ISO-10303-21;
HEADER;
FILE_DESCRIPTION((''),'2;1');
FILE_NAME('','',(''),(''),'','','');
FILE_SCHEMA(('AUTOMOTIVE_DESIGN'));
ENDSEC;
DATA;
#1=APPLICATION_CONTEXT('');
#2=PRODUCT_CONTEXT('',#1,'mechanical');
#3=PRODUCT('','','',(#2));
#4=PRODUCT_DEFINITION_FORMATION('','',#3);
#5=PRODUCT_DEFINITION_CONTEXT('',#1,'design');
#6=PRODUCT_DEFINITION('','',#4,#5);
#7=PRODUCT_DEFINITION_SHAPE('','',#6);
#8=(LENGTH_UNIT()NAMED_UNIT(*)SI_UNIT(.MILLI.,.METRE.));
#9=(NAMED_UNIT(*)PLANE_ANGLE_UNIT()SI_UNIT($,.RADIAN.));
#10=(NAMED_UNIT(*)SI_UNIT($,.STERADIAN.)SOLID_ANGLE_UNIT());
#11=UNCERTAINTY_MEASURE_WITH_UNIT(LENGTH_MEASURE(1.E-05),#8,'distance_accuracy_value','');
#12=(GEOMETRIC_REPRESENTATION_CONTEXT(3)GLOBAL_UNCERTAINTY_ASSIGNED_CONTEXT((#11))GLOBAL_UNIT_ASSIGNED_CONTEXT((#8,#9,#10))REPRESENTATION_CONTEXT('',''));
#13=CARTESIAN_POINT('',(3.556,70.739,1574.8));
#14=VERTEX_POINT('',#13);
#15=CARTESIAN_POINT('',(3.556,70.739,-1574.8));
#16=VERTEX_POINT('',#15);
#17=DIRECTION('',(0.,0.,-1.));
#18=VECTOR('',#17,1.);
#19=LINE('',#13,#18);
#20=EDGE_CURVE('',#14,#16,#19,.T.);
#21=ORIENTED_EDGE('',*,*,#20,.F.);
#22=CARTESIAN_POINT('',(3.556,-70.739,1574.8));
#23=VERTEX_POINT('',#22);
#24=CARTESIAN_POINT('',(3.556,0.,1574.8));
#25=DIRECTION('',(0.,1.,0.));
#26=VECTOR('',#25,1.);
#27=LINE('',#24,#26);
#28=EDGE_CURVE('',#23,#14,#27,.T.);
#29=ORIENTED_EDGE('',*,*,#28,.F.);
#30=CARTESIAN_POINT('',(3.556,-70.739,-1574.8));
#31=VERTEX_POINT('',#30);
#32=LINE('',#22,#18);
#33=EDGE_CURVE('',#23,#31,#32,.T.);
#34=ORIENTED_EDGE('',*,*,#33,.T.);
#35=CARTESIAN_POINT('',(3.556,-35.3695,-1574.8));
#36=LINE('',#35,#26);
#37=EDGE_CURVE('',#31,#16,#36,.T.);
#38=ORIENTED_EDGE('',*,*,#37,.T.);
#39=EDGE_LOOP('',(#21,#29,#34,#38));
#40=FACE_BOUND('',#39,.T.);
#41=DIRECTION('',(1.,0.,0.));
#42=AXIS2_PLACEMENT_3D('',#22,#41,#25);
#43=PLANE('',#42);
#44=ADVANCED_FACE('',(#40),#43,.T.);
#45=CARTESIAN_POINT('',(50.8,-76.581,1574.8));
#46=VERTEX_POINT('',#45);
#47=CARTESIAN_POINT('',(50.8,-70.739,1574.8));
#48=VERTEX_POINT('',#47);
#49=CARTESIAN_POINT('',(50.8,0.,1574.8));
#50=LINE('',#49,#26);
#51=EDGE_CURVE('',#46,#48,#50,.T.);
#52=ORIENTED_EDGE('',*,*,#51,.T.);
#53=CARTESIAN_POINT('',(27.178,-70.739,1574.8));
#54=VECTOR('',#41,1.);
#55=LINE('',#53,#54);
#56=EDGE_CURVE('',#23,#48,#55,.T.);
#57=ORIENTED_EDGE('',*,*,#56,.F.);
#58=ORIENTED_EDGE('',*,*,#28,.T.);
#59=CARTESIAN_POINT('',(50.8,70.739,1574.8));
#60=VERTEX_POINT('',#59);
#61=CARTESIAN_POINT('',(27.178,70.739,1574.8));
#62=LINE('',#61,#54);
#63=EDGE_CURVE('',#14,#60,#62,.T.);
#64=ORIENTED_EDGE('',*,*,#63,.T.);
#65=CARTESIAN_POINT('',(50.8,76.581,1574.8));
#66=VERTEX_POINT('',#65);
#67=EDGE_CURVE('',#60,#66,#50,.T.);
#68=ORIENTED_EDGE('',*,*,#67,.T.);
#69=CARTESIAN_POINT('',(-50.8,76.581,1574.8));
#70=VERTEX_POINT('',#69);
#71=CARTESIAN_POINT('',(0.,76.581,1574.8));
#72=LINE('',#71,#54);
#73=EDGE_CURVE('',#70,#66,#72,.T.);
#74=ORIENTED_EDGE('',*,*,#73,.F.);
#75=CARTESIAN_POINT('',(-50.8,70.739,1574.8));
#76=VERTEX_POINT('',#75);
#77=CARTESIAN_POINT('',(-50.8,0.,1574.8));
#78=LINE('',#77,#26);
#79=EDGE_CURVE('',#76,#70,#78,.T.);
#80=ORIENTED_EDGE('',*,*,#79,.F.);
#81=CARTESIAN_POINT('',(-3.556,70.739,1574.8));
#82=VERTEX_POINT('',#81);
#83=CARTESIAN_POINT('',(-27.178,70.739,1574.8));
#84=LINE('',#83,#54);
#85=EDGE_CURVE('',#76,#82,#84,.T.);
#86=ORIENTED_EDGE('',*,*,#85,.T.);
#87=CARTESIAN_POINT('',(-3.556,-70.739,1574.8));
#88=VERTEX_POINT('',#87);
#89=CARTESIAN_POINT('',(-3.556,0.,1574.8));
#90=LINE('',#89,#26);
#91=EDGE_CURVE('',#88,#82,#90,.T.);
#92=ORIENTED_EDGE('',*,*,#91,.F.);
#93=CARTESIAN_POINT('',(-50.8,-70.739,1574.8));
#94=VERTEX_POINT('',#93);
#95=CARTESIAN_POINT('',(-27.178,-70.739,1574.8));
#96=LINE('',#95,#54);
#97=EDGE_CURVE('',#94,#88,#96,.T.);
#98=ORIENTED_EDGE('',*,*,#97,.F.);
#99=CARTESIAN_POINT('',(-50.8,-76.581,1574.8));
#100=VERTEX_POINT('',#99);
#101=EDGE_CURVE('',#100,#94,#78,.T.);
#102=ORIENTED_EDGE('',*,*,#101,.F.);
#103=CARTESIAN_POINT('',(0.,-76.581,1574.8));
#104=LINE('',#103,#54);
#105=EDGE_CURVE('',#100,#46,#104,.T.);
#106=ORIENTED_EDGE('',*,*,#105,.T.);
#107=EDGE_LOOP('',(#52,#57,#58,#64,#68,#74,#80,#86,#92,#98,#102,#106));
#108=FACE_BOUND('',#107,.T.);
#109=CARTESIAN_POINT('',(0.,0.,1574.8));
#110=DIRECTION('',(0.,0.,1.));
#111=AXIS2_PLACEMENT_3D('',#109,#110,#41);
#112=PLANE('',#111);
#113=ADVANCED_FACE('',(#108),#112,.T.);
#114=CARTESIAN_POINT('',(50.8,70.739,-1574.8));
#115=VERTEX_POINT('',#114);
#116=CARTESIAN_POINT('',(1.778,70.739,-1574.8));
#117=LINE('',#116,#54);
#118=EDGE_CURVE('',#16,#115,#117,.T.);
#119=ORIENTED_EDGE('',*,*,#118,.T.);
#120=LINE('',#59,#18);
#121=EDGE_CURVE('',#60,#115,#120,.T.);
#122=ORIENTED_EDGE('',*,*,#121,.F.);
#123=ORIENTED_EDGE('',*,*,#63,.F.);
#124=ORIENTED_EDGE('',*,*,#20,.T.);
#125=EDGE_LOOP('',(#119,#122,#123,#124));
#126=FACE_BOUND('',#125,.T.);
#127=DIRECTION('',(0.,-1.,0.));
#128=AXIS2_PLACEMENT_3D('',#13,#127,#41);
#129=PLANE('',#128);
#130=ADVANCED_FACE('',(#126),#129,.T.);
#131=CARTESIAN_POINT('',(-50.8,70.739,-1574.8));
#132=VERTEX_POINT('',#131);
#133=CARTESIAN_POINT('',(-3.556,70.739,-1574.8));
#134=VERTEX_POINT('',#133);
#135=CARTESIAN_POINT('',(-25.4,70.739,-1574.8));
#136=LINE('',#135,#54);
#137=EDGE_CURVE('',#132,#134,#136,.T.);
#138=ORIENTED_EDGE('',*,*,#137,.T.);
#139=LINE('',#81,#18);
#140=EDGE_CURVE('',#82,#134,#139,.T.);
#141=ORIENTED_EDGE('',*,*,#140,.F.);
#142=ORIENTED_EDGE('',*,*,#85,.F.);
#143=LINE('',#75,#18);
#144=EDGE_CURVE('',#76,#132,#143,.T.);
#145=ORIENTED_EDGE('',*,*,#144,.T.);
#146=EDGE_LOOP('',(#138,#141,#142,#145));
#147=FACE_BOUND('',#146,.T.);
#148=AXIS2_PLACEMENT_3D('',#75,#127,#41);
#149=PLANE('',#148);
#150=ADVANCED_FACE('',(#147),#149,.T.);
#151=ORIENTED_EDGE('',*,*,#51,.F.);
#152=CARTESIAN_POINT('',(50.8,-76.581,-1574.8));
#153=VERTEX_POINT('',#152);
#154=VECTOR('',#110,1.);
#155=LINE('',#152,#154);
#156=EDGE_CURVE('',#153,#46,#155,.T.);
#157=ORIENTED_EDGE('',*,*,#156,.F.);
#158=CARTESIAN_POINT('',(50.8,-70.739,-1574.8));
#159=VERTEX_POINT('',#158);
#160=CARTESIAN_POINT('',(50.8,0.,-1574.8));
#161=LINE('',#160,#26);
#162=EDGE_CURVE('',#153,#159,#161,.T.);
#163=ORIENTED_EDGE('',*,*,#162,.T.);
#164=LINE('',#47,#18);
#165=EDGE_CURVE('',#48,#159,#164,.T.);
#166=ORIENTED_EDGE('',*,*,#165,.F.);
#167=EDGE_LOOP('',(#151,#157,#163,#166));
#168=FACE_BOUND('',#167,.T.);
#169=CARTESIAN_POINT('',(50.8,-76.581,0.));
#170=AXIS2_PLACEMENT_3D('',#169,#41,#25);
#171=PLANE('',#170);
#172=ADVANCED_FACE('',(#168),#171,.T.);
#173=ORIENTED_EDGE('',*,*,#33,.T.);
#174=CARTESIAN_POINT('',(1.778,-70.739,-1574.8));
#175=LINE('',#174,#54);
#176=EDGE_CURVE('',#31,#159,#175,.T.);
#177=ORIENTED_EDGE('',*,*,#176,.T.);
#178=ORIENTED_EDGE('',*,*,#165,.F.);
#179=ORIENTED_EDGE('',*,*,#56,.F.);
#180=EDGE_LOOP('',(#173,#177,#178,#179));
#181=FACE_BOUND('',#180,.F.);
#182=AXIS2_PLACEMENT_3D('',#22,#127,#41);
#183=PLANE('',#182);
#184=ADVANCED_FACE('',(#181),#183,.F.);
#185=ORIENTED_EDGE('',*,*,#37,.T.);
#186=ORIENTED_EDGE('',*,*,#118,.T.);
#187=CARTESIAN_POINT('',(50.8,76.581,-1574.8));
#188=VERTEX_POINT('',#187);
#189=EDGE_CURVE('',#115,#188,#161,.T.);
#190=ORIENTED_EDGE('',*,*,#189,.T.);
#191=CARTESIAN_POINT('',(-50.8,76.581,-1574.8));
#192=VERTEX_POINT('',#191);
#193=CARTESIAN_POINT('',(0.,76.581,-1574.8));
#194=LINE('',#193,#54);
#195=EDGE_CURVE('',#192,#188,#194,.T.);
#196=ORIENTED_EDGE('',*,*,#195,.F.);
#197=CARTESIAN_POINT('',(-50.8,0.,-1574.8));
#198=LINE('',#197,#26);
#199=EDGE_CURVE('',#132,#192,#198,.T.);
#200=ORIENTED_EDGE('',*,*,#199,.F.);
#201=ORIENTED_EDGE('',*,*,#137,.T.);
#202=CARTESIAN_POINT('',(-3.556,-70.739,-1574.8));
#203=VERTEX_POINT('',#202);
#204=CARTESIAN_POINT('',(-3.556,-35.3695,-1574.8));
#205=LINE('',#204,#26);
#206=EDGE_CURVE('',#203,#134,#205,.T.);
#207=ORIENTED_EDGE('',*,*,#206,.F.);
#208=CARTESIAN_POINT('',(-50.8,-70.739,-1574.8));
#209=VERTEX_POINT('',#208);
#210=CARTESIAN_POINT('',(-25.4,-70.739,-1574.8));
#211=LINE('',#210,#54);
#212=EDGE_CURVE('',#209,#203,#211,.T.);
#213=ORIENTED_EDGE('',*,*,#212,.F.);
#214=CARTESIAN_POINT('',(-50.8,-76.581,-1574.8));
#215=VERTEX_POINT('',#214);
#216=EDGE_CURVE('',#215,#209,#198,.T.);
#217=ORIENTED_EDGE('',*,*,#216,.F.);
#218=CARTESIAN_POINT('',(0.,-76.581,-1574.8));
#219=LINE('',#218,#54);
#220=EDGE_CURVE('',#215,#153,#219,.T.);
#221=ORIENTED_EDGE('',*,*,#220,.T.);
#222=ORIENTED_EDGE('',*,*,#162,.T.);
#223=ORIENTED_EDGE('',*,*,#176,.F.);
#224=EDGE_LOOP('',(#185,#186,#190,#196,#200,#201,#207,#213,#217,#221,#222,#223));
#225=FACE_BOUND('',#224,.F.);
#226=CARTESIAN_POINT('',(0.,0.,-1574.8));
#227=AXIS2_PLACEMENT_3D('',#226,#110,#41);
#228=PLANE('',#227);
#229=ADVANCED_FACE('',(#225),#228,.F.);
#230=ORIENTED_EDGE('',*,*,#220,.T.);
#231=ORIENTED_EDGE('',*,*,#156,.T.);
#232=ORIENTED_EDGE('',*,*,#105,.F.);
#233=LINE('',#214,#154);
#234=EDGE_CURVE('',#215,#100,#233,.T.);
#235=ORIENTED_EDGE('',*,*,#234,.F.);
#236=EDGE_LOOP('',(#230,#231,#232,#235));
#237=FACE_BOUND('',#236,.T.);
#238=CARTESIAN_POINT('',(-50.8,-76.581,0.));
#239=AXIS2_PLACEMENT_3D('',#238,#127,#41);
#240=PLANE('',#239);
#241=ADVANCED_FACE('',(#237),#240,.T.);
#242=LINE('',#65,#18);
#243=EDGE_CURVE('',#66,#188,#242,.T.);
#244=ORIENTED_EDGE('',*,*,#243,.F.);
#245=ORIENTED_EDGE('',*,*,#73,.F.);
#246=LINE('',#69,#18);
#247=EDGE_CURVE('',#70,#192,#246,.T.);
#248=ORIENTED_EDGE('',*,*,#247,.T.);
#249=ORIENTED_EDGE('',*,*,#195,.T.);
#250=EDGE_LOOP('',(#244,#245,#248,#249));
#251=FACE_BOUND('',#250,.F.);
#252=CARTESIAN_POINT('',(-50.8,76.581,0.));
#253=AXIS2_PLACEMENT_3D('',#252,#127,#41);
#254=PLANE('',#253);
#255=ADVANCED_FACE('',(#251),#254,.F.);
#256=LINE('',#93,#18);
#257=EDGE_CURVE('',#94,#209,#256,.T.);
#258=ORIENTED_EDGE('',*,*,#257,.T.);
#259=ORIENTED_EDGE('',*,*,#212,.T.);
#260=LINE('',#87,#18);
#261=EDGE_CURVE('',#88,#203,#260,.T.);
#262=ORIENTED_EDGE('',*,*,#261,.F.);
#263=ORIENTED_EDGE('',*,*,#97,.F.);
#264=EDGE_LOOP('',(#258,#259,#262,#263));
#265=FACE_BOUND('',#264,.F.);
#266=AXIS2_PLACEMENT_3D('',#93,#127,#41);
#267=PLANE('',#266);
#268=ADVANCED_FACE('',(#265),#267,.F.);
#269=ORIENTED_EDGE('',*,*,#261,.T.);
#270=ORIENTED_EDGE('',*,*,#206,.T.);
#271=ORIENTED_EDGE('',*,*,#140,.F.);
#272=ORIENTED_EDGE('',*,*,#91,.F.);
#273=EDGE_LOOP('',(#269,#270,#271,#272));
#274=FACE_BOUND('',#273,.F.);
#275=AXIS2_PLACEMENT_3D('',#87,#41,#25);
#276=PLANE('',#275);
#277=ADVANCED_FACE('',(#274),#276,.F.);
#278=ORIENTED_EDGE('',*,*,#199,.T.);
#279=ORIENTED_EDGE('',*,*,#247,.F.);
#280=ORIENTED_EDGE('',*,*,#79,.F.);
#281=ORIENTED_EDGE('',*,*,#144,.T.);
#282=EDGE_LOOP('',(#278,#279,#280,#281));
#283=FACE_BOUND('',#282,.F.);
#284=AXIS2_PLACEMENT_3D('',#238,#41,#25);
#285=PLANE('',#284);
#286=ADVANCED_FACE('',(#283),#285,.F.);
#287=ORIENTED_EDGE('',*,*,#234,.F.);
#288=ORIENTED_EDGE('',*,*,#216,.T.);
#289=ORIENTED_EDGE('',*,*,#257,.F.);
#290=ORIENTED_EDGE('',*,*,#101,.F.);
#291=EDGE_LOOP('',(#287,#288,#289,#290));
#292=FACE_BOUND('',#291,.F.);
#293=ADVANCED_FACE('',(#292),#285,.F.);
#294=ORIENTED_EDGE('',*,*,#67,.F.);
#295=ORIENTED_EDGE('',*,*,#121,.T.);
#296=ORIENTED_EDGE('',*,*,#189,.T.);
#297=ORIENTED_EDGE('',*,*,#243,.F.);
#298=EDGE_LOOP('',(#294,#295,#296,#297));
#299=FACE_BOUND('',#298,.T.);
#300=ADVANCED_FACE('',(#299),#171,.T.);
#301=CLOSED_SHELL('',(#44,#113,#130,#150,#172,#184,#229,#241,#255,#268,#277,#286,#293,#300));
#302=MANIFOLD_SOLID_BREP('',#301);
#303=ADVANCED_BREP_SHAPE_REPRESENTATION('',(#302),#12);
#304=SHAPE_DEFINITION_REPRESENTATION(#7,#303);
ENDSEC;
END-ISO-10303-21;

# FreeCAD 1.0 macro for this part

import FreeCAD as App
import Part
import Sketcher
from FreeCAD import Vector
Q = App.Units.Quantity

doc = App.newDocument("Part")
body = doc.addObject("PartDesign::Body", "Body")

# Sketch on XY plane
sketch1 = body.newObject("Sketcher::SketchObject", "Sketch")
sketch1.AttachmentSupport = (doc.getObject("XY_Plane"), [""])
sketch1.MapMode = "FlatFace"
sketch1.addGeometry(Part.LineSegment(Vector(-50.8, 76.581, 0), Vector(-50.8, -76.581, 0)), False)
sketch1.addGeometry(Part.LineSegment(Vector(-50.8, -76.581, 0), Vector(50.8, -76.581, 0)), False)
sketch1.addGeometry(Part.LineSegment(Vector(50.8, -76.581, 0), Vector(50.8, 76.581, 0)), False)
sketch1.addGeometry(Part.LineSegment(Vector(50.8, 76.581, 0), Vector(-50.8, 76.581, 0)), False)
sketch1.addConstraint(Sketcher.Constraint("Coincident", 0, 2, 1, 1))
sketch1.addConstraint(Sketcher.Constraint("Coincident", 1, 2, 2, 1))
sketch1.addConstraint(Sketcher.Constraint("Coincident", 2, 2, 3, 1))
sketch1.addConstraint(Sketcher.Constraint("Coincident", 3, 2, 0, 1))
sketch1.addConstraint(Sketcher.Constraint("Vertical", 0))
sketch1.addConstraint(Sketcher.Constraint("Horizontal", 1))
sketch1.addConstraint(Sketcher.Constraint("Vertical", 2))
sketch1.addConstraint(Sketcher.Constraint("Horizontal", 3))
sketch1.addConstraint(Sketcher.Constraint("Symmetric", 0, 2, 2, 2, -1, 1))
sketch1.addConstraint(Sketcher.Constraint("DistanceX", 1, 1, 1, 2, Q("4 in")))
sketch1.addConstraint(Sketcher.Constraint("DistanceY", 0, 2, 0, 1, Q("6.03 in")))
pad1 = body.newObject("PartDesign::Pad", "Pad")
pad1.Profile = sketch1
pad1.Length = Q("124 in")
pad1.Midplane = True

# Sketch on XY plane
sketch2 = body.newObject("Sketcher::SketchObject", "Sketch001")
sketch2.AttachmentSupport = (doc.getObject("XY_Plane"), [""])
sketch2.MapMode = "FlatFace"
sketch2.AttachmentOffset = App.Placement(Vector(0, 0, 62 * 25.4), App.Rotation())
sketch2.addGeometry(Part.LineSegment(Vector(3.556, 70.739, 0), Vector(3.556, -70.739, 0)), False)
sketch2.addGeometry(Part.LineSegment(Vector(3.556, -70.739, 0), Vector(50.8, -70.739, 0)), False)
sketch2.addGeometry(Part.LineSegment(Vector(50.8, -70.739, 0), Vector(50.8, 70.739, 0)), False)
sketch2.addGeometry(Part.LineSegment(Vector(50.8, 70.739, 0), Vector(3.556, 70.739, 0)), False)
sketch2.addGeometry(Part.LineSegment(Vector(-50.8, 70.739, 0), Vector(-50.8, -70.739, 0)), False)
sketch2.addGeometry(Part.LineSegment(Vector(-50.8, -70.739, 0), Vector(-3.556, -70.739, 0)), False)
sketch2.addGeometry(Part.LineSegment(Vector(-3.556, -70.739, 0), Vector(-3.556, 70.739, 0)), False)
sketch2.addGeometry(Part.LineSegment(Vector(-3.556, 70.739, 0), Vector(-50.8, 70.739, 0)), False)
sketch2.addConstraint(Sketcher.Constraint("Coincident", 0, 2, 1, 1))
sketch2.addConstraint(Sketcher.Constraint("Coincident", 1, 2, 2, 1))
sketch2.addConstraint(Sketcher.Constraint("Coincident", 2, 2, 3, 1))
sketch2.addConstraint(Sketcher.Constraint("Coincident", 3, 2, 0, 1))
sketch2.addConstraint(Sketcher.Constraint("Coincident", 4, 2, 5, 1))
sketch2.addConstraint(Sketcher.Constraint("Coincident", 5, 2, 6, 1))
sketch2.addConstraint(Sketcher.Constraint("Coincident", 6, 2, 7, 1))
sketch2.addConstraint(Sketcher.Constraint("Coincident", 7, 2, 4, 1))
sketch2.addConstraint(Sketcher.Constraint("Vertical", 0))
sketch2.addConstraint(Sketcher.Constraint("Horizontal", 1))
sketch2.addConstraint(Sketcher.Constraint("Vertical", 2))
sketch2.addConstraint(Sketcher.Constraint("Horizontal", 3))
sketch2.addConstraint(Sketcher.Constraint("Vertical", 4))
sketch2.addConstraint(Sketcher.Constraint("Horizontal", 5))
sketch2.addConstraint(Sketcher.Constraint("Vertical", 6))
sketch2.addConstraint(Sketcher.Constraint("Horizontal", 7))
sketch2.addConstraint(Sketcher.Constraint("Symmetric", 2, 2, 4, 2, -1, 1))
sketch2.addConstraint(Sketcher.Constraint("Symmetric", 0, 2, 6, 2, -1, 1))
sketch2.addConstraint(Sketcher.Constraint("Horizontal", 1, 2, 4, 2))
sketch2.addConstraint(Sketcher.Constraint("DistanceX", -1, 1, 1, 2, Q("2 in")))
sketch2.addConstraint(Sketcher.Constraint("DistanceX", 1, 1, 1, 2, Q("1.86 in")))
sketch2.addConstraint(Sketcher.Constraint("DistanceY", 0, 2, 0, 1, Q("5.57 in")))
pocket1 = body.newObject("PartDesign::Pocket", "Pocket")
pocket1.Profile = sketch2
pocket1.Type = "ThroughAll"

doc.recompute()
